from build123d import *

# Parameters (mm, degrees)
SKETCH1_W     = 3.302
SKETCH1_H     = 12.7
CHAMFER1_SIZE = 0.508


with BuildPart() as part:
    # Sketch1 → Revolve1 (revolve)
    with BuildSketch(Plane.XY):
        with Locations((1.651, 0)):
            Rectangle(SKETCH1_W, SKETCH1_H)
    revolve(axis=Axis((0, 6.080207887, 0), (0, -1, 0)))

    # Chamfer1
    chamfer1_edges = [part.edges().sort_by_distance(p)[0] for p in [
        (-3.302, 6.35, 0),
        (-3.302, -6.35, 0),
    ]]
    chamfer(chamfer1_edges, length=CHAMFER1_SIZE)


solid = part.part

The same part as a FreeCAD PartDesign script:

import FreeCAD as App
import Part
import Sketcher
from FreeCAD import Vector
Q = App.Units.Quantity


def edges_at(feature, points):
    """Names of the edges that pass closest to the given points."""
    edges = feature.Shape.Edges
    near = lambda p: min(range(len(edges)), key=lambda i: edges[i].distToShape(Part.Vertex(*p))[0])
    return sorted({f"Edge{near(p) + 1}" for p in points})


def add_polygon(sketch, points):
    """Adds a closed chain of lines whose ends are joined by coincident constraints."""
    first, n = sketch.GeometryCount, len(points)
    for a, b in zip(points, points[1:] + points[:1]):
        sketch.addGeometry(Part.LineSegment(App.Vector(*a, 0), App.Vector(*b, 0)), False)
    for i in range(n):
        sketch.addConstraint(Sketcher.Constraint("Coincident", first + i, 2, first + (i + 1) % n, 1))

doc = App.newDocument("Part")
params = doc.addObject("Spreadsheet::Sheet", "Params")
for row, (alias, value) in enumerate([
    ("sketch1_height", "0.5 in"),
    ("sketch1_width", "0.13 in"),
    ("revolution_angle", "360 deg"),
    ("chamfer_size", "0.02 in"),
], start=1):
    params.set(f"A{row}", alias)
    params.set(f"B{row}", "=" + value)
    params.setAlias(f"B{row}", alias)

body = doc.addObject("PartDesign::Body", "Body")

sketch1 = body.newObject("Sketcher::SketchObject", "Sketch")
sketch1.AttachmentSupport = (doc.getObject("XY_Plane"), [""])
sketch1.MapMode = "FlatFace"
add_polygon(sketch1, [(0, 6.3), (0, -6.3), (3.3, -6.3), (3.3, 6.3)])
sketch1.addConstraint(Sketcher.Constraint("Vertical", 0))
sketch1.addConstraint(Sketcher.Constraint("Horizontal", 1))
sketch1.addConstraint(Sketcher.Constraint("Vertical", 2))
sketch1.addConstraint(Sketcher.Constraint("Horizontal", 3))
sketch1.addConstraint(Sketcher.Constraint("Symmetric", 0, 2, 3, 2, -1, 1))
sketch1.addConstraint(Sketcher.Constraint("DistanceY", 0, 2, 0, 1, Q("0.5 in")))
sketch1.addConstraint(Sketcher.Constraint("DistanceX", 1, 1, 1, 2, Q("0.13 in")))
sketch1.setExpression("Constraints[9]", "Params.sketch1_height")
sketch1.setExpression("Constraints[10]", "Params.sketch1_width")
revolution = body.newObject("PartDesign::Revolution", "Revolution")
revolution.Profile = sketch1
revolution.ReferenceAxis = (sketch1, ["V_Axis"])
revolution.setExpression("Angle", "Params.revolution_angle")
doc.recompute()

chamfer = body.newObject("PartDesign::Chamfer", "Chamfer")
chamfer.Base = (revolution, edges_at(revolution, [(-3.302, 6.35, 0), (-3.302, -6.35, 0)]))
chamfer.setExpression("Size", "Params.chamfer_size")

doc.recompute()
